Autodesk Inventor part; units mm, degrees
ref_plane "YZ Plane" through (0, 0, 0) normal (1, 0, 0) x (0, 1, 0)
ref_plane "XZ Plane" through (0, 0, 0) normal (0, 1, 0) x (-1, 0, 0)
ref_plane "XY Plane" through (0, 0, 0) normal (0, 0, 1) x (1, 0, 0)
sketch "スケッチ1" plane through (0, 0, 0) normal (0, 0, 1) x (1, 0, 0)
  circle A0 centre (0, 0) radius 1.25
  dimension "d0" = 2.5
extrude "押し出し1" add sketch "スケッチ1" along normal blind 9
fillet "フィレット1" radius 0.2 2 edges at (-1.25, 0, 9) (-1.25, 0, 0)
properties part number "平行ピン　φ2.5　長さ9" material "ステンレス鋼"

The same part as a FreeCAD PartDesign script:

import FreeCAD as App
import Part
import Sketcher
Q = App.Units.Quantity


def edges_at(feature, points):
    """Names of the edges that pass closest to the given points."""
    edges = feature.Shape.Edges
    near = lambda p: min(range(len(edges)), key=lambda i: edges[i].distToShape(Part.Vertex(*p))[0])
    return sorted({f"Edge{near(p) + 1}" for p in points})

doc = App.newDocument("Part")
body = doc.addObject("PartDesign::Body", "Body")

# Sketch on XY plane
sketch1 = body.newObject("Sketcher::SketchObject", "Sketch")
sketch1.AttachmentSupport = (doc.getObject("XY_Plane"), [""])
sketch1.MapMode = "FlatFace"
sketch1.addGeometry(Part.Circle(App.Vector(0, 0, 0), App.Vector(0, 0, 1), 1.2), False)
sketch1.addConstraint([
    Sketcher.Constraint("Coincident", 0, 3, -1, 1),
    Sketcher.Constraint("Diameter", 0, Q("2.5 mm")),
])
pad1 = body.newObject("PartDesign::Pad", "Pad")
pad1.Profile = sketch1
pad1.Length = 9
doc.recompute()

fillet = body.newObject("PartDesign::Fillet", "Fillet")
fillet.Base = (pad1, edges_at(pad1, [(-1.25, 0, 9), (-1.25, 0, 0)]))
fillet.Radius = 0.2

doc.recompute()
